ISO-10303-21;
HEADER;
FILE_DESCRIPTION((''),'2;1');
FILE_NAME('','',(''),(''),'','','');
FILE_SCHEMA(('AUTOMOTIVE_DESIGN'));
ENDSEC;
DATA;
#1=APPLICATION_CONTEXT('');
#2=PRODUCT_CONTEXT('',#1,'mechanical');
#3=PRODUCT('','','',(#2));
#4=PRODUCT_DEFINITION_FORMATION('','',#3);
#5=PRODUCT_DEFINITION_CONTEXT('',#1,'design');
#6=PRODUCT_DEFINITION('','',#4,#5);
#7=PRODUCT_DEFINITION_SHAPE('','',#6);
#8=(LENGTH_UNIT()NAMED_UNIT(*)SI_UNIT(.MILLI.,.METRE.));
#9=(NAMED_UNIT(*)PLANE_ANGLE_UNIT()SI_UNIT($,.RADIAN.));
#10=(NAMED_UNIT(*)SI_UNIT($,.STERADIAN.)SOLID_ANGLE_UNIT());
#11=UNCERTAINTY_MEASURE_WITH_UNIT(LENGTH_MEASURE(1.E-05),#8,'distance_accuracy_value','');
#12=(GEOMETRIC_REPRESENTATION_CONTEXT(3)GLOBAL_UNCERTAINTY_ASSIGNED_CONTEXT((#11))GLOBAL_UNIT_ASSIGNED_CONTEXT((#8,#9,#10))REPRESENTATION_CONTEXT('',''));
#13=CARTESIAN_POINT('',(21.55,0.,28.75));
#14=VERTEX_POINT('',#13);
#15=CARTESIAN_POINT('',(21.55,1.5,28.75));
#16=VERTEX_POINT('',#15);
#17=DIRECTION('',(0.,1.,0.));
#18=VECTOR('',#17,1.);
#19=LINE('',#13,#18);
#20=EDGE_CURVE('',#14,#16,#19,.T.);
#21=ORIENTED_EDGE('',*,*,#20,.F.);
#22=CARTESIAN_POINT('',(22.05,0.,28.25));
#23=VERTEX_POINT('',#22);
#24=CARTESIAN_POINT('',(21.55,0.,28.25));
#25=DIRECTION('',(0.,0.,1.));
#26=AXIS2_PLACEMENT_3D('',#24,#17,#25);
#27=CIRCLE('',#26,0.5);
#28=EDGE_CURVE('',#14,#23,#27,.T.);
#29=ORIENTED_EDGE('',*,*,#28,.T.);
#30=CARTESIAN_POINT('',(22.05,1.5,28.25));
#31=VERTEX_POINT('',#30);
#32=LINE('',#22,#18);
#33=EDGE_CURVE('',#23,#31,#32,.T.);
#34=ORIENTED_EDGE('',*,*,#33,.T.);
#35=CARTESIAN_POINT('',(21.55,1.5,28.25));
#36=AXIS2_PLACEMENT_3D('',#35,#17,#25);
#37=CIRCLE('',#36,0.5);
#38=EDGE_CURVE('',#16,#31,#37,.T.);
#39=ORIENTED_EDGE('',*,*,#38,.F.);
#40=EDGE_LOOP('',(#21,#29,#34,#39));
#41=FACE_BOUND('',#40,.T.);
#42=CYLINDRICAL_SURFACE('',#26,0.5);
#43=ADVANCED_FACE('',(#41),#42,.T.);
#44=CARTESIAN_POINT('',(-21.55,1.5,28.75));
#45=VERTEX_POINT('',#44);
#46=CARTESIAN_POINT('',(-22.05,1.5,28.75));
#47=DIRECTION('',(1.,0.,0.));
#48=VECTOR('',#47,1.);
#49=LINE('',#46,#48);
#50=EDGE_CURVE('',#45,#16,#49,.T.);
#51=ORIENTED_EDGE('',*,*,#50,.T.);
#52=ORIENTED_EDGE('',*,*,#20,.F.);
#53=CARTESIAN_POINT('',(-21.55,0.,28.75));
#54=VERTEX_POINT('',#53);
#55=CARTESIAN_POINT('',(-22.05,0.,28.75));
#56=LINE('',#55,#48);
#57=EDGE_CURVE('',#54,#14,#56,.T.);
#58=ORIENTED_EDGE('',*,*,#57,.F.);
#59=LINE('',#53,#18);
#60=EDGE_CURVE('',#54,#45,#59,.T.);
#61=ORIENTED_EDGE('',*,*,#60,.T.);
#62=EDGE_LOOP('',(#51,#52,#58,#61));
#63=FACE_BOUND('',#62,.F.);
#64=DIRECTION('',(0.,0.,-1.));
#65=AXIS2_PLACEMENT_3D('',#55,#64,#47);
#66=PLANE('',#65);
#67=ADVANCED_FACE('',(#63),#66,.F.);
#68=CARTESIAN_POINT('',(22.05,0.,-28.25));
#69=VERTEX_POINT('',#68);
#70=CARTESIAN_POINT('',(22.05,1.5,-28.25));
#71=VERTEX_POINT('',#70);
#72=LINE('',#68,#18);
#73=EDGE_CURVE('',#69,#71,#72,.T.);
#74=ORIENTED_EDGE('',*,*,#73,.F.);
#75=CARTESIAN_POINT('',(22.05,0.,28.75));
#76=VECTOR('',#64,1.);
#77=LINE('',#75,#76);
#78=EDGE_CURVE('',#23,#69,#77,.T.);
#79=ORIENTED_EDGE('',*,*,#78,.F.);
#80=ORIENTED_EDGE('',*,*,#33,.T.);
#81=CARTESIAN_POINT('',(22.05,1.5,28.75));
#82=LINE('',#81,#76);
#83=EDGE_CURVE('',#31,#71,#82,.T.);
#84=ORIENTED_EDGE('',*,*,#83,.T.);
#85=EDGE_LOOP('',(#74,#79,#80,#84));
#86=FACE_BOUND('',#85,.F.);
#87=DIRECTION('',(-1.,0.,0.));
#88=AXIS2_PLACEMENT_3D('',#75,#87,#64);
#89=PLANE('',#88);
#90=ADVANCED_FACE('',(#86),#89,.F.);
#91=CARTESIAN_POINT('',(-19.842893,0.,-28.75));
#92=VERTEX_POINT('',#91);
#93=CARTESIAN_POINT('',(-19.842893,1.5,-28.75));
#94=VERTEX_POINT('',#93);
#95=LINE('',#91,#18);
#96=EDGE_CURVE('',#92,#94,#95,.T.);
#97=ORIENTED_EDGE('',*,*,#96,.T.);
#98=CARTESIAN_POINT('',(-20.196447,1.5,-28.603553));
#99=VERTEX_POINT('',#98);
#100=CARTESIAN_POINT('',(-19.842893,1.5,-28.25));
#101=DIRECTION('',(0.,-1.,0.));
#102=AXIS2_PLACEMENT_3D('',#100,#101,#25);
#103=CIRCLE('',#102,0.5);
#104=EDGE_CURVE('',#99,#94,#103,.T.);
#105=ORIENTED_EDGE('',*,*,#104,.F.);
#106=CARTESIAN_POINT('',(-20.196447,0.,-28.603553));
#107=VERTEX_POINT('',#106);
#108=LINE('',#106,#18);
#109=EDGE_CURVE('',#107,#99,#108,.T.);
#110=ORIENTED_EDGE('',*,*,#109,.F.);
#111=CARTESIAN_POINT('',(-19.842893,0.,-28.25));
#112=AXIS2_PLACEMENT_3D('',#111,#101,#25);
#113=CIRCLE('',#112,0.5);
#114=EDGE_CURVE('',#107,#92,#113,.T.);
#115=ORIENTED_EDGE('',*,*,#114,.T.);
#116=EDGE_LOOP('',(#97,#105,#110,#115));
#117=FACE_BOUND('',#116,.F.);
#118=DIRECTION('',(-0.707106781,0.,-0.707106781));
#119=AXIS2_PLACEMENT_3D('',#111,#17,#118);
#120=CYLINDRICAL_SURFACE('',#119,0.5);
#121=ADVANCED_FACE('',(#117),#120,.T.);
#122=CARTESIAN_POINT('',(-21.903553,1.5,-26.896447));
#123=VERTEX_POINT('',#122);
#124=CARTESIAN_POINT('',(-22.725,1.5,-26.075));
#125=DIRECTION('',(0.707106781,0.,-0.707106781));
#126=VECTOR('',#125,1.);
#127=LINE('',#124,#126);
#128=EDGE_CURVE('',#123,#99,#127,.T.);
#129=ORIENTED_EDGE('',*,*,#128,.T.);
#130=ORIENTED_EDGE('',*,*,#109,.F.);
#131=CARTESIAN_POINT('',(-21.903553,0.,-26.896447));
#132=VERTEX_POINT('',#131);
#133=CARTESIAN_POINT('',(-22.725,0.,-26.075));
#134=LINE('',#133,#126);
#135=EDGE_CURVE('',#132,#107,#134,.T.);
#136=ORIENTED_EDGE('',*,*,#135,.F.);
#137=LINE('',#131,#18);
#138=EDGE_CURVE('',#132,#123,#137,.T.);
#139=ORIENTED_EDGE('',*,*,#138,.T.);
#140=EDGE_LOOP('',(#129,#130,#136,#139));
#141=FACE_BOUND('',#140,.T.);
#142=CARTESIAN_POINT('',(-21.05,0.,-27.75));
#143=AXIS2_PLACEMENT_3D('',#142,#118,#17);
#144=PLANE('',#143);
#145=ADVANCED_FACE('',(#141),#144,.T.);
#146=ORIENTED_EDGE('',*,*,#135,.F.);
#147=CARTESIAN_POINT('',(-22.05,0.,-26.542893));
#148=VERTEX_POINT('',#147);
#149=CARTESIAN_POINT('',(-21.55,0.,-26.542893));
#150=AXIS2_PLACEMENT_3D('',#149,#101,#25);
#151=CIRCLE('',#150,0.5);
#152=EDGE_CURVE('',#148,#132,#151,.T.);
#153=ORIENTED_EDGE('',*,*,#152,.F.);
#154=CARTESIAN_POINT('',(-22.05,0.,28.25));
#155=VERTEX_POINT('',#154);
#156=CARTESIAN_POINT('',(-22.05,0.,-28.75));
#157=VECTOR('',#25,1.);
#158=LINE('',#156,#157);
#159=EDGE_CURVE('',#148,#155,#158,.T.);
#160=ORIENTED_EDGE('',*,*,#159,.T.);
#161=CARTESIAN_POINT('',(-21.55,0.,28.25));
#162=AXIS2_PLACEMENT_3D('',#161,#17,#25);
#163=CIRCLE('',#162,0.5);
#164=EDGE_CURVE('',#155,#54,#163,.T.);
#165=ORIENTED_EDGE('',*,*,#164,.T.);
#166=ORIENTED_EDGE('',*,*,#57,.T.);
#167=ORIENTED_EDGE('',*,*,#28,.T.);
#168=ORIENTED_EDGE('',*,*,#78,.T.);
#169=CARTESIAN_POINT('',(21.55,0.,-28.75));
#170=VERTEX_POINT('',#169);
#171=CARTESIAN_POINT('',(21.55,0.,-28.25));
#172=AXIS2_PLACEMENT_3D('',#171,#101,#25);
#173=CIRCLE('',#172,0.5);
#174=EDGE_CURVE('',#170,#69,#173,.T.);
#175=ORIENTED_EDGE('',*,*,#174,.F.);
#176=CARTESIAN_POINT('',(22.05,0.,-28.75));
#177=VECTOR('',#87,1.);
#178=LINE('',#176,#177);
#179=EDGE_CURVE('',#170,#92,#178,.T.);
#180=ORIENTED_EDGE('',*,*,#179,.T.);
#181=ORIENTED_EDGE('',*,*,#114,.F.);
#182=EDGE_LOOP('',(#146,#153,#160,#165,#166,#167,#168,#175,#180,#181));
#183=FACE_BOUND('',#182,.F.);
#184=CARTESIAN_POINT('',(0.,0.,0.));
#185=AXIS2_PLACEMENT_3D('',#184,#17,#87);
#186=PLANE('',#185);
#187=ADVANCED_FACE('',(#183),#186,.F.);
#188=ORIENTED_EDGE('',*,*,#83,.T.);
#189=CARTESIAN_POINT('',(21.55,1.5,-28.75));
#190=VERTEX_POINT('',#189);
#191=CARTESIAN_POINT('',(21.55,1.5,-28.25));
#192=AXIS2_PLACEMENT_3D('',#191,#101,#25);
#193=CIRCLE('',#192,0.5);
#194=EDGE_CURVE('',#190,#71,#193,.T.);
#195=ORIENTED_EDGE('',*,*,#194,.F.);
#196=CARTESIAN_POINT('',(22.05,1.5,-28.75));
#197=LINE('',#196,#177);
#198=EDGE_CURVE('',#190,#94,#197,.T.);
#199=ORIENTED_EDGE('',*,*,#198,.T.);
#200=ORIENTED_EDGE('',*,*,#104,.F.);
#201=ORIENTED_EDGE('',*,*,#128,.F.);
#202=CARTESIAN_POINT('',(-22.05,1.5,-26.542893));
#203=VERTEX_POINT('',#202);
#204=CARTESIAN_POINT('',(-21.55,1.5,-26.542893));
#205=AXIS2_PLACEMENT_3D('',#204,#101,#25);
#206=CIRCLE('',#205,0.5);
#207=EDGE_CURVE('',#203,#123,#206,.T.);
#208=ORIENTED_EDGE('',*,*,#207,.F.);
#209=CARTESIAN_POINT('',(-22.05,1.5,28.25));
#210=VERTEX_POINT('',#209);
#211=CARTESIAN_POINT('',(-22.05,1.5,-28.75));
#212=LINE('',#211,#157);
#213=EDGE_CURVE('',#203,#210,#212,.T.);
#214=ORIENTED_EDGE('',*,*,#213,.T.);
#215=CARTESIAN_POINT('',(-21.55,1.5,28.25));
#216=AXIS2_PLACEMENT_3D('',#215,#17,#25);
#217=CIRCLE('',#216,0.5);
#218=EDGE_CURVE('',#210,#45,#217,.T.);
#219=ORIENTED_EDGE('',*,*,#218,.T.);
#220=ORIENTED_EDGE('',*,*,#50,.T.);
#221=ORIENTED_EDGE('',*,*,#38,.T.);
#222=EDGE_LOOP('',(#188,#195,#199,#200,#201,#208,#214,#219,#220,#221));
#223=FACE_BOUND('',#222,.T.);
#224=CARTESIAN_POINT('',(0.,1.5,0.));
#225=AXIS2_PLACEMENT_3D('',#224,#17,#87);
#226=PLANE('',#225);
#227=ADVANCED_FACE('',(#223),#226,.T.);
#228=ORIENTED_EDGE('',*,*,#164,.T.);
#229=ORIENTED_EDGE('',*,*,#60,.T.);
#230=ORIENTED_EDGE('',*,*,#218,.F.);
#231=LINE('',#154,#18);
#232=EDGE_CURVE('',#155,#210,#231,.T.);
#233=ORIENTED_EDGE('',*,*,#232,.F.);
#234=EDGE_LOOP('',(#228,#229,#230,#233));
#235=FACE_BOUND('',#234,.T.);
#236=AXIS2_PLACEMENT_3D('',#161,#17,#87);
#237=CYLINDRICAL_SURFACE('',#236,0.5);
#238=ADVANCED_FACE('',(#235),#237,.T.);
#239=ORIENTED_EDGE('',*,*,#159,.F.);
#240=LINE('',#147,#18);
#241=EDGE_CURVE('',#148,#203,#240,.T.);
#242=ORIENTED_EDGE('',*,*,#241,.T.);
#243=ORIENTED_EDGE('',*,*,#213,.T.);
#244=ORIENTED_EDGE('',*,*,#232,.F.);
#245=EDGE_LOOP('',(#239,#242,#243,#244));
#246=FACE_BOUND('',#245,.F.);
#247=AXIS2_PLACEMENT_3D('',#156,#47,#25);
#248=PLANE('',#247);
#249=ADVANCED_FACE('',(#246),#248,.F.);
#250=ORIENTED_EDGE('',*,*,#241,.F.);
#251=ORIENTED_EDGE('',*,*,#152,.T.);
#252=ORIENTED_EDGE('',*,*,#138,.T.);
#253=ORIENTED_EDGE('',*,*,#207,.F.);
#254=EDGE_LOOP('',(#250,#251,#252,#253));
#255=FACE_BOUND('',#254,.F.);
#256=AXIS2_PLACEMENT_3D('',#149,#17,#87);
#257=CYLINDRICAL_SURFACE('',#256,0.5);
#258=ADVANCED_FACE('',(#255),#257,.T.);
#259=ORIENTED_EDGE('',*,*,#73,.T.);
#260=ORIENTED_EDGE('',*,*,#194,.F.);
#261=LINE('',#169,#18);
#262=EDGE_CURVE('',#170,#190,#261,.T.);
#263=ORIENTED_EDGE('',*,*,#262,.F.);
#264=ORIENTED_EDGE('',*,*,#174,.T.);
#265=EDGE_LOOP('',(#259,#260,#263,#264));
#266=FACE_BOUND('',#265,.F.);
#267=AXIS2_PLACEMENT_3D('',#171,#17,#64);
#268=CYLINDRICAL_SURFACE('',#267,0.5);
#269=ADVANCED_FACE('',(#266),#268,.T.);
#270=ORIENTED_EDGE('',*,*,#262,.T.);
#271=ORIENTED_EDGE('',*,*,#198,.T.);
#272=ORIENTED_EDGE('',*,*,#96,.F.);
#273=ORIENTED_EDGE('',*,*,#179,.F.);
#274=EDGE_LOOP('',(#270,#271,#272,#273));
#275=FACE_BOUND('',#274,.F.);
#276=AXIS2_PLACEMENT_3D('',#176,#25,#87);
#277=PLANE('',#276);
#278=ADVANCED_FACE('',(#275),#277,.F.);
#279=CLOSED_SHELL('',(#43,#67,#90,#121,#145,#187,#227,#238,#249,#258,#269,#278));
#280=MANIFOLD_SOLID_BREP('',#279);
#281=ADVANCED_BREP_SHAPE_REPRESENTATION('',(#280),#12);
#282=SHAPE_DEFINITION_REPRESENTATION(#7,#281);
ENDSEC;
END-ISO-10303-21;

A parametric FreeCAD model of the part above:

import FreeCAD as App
import Part
import Sketcher

V = App.Vector


def edges_at(feature, points):
    """Names of the edges that pass closest to the given points."""
    edges = feature.Shape.Edges
    near = lambda p: min(range(len(edges)), key=lambda i: edges[i].distToShape(Part.Vertex(*p))[0])
    return sorted({f"Edge{near(p) + 1}" for p in points})

doc = App.newDocument("Part")
body = doc.addObject("PartDesign::Body", "Body")

sketch1 = body.newObject("Sketcher::SketchObject", "Sketch")
sketch1.AttachmentSupport = (doc.getObject("XZ_Plane"), [""])
sketch1.MapMode = "FlatFace"
sketch1.addGeometry(Part.LineSegment(V(22, 29, 0), V(22, -29, 0)), False)
sketch1.addGeometry(Part.LineSegment(V(22, -29, 0), V(-22, -29, 0)), False)
sketch1.addGeometry(Part.LineSegment(V(-22, -29, 0), V(-22, 29, 0)), False)
sketch1.addGeometry(Part.LineSegment(V(-22, 29, 0), V(22, 29, 0)), False)
sketch1.addConstraint(Sketcher.Constraint("Coincident", 0, 2, 1, 1))
sketch1.addConstraint(Sketcher.Constraint("Coincident", 1, 2, 2, 1))
sketch1.addConstraint(Sketcher.Constraint("Coincident", 2, 2, 3, 1))
sketch1.addConstraint(Sketcher.Constraint("Coincident", 3, 2, 0, 1))
sketch1.addConstraint(Sketcher.Constraint("Vertical", 0))
sketch1.addConstraint(Sketcher.Constraint("Horizontal", 1))
sketch1.addConstraint(Sketcher.Constraint("Vertical", 2))
sketch1.addConstraint(Sketcher.Constraint("Horizontal", 3))
sketch1.addConstraint(Sketcher.Constraint("Symmetric", 0, 2, 2, 2, -1, 1))
sketch1.addConstraint(Sketcher.Constraint("DistanceX", 1, 2, 1, 1, 44.1))
sketch1.addConstraint(Sketcher.Constraint("DistanceY", 0, 2, 0, 1, 57.5))
pad1 = body.newObject("PartDesign::Pad", "Pad")
pad1.Profile = sketch1
pad1.Length = 1.5
pad1.Reversed = True
doc.recompute()

chamfer = body.newObject("PartDesign::Chamfer", "Chamfer")
chamfer.Base = (pad1, edges_at(pad1, [(-22.05, 0.75, -28.75)]))
chamfer.Size = 2
doc.recompute()

fillet = body.newObject("PartDesign::Fillet", "Fillet")
fillet.Base = (chamfer, edges_at(chamfer, [
    (22.05, 0.75, 28.75),
    (-22.05, 0.75, 28.75),
    (22.05, 0.75, -28.75),
    (-20.05, 0.75, -28.75),
    (-22.05, 0.75, -26.75),
]))
fillet.Radius = 0.5

doc.recompute()
